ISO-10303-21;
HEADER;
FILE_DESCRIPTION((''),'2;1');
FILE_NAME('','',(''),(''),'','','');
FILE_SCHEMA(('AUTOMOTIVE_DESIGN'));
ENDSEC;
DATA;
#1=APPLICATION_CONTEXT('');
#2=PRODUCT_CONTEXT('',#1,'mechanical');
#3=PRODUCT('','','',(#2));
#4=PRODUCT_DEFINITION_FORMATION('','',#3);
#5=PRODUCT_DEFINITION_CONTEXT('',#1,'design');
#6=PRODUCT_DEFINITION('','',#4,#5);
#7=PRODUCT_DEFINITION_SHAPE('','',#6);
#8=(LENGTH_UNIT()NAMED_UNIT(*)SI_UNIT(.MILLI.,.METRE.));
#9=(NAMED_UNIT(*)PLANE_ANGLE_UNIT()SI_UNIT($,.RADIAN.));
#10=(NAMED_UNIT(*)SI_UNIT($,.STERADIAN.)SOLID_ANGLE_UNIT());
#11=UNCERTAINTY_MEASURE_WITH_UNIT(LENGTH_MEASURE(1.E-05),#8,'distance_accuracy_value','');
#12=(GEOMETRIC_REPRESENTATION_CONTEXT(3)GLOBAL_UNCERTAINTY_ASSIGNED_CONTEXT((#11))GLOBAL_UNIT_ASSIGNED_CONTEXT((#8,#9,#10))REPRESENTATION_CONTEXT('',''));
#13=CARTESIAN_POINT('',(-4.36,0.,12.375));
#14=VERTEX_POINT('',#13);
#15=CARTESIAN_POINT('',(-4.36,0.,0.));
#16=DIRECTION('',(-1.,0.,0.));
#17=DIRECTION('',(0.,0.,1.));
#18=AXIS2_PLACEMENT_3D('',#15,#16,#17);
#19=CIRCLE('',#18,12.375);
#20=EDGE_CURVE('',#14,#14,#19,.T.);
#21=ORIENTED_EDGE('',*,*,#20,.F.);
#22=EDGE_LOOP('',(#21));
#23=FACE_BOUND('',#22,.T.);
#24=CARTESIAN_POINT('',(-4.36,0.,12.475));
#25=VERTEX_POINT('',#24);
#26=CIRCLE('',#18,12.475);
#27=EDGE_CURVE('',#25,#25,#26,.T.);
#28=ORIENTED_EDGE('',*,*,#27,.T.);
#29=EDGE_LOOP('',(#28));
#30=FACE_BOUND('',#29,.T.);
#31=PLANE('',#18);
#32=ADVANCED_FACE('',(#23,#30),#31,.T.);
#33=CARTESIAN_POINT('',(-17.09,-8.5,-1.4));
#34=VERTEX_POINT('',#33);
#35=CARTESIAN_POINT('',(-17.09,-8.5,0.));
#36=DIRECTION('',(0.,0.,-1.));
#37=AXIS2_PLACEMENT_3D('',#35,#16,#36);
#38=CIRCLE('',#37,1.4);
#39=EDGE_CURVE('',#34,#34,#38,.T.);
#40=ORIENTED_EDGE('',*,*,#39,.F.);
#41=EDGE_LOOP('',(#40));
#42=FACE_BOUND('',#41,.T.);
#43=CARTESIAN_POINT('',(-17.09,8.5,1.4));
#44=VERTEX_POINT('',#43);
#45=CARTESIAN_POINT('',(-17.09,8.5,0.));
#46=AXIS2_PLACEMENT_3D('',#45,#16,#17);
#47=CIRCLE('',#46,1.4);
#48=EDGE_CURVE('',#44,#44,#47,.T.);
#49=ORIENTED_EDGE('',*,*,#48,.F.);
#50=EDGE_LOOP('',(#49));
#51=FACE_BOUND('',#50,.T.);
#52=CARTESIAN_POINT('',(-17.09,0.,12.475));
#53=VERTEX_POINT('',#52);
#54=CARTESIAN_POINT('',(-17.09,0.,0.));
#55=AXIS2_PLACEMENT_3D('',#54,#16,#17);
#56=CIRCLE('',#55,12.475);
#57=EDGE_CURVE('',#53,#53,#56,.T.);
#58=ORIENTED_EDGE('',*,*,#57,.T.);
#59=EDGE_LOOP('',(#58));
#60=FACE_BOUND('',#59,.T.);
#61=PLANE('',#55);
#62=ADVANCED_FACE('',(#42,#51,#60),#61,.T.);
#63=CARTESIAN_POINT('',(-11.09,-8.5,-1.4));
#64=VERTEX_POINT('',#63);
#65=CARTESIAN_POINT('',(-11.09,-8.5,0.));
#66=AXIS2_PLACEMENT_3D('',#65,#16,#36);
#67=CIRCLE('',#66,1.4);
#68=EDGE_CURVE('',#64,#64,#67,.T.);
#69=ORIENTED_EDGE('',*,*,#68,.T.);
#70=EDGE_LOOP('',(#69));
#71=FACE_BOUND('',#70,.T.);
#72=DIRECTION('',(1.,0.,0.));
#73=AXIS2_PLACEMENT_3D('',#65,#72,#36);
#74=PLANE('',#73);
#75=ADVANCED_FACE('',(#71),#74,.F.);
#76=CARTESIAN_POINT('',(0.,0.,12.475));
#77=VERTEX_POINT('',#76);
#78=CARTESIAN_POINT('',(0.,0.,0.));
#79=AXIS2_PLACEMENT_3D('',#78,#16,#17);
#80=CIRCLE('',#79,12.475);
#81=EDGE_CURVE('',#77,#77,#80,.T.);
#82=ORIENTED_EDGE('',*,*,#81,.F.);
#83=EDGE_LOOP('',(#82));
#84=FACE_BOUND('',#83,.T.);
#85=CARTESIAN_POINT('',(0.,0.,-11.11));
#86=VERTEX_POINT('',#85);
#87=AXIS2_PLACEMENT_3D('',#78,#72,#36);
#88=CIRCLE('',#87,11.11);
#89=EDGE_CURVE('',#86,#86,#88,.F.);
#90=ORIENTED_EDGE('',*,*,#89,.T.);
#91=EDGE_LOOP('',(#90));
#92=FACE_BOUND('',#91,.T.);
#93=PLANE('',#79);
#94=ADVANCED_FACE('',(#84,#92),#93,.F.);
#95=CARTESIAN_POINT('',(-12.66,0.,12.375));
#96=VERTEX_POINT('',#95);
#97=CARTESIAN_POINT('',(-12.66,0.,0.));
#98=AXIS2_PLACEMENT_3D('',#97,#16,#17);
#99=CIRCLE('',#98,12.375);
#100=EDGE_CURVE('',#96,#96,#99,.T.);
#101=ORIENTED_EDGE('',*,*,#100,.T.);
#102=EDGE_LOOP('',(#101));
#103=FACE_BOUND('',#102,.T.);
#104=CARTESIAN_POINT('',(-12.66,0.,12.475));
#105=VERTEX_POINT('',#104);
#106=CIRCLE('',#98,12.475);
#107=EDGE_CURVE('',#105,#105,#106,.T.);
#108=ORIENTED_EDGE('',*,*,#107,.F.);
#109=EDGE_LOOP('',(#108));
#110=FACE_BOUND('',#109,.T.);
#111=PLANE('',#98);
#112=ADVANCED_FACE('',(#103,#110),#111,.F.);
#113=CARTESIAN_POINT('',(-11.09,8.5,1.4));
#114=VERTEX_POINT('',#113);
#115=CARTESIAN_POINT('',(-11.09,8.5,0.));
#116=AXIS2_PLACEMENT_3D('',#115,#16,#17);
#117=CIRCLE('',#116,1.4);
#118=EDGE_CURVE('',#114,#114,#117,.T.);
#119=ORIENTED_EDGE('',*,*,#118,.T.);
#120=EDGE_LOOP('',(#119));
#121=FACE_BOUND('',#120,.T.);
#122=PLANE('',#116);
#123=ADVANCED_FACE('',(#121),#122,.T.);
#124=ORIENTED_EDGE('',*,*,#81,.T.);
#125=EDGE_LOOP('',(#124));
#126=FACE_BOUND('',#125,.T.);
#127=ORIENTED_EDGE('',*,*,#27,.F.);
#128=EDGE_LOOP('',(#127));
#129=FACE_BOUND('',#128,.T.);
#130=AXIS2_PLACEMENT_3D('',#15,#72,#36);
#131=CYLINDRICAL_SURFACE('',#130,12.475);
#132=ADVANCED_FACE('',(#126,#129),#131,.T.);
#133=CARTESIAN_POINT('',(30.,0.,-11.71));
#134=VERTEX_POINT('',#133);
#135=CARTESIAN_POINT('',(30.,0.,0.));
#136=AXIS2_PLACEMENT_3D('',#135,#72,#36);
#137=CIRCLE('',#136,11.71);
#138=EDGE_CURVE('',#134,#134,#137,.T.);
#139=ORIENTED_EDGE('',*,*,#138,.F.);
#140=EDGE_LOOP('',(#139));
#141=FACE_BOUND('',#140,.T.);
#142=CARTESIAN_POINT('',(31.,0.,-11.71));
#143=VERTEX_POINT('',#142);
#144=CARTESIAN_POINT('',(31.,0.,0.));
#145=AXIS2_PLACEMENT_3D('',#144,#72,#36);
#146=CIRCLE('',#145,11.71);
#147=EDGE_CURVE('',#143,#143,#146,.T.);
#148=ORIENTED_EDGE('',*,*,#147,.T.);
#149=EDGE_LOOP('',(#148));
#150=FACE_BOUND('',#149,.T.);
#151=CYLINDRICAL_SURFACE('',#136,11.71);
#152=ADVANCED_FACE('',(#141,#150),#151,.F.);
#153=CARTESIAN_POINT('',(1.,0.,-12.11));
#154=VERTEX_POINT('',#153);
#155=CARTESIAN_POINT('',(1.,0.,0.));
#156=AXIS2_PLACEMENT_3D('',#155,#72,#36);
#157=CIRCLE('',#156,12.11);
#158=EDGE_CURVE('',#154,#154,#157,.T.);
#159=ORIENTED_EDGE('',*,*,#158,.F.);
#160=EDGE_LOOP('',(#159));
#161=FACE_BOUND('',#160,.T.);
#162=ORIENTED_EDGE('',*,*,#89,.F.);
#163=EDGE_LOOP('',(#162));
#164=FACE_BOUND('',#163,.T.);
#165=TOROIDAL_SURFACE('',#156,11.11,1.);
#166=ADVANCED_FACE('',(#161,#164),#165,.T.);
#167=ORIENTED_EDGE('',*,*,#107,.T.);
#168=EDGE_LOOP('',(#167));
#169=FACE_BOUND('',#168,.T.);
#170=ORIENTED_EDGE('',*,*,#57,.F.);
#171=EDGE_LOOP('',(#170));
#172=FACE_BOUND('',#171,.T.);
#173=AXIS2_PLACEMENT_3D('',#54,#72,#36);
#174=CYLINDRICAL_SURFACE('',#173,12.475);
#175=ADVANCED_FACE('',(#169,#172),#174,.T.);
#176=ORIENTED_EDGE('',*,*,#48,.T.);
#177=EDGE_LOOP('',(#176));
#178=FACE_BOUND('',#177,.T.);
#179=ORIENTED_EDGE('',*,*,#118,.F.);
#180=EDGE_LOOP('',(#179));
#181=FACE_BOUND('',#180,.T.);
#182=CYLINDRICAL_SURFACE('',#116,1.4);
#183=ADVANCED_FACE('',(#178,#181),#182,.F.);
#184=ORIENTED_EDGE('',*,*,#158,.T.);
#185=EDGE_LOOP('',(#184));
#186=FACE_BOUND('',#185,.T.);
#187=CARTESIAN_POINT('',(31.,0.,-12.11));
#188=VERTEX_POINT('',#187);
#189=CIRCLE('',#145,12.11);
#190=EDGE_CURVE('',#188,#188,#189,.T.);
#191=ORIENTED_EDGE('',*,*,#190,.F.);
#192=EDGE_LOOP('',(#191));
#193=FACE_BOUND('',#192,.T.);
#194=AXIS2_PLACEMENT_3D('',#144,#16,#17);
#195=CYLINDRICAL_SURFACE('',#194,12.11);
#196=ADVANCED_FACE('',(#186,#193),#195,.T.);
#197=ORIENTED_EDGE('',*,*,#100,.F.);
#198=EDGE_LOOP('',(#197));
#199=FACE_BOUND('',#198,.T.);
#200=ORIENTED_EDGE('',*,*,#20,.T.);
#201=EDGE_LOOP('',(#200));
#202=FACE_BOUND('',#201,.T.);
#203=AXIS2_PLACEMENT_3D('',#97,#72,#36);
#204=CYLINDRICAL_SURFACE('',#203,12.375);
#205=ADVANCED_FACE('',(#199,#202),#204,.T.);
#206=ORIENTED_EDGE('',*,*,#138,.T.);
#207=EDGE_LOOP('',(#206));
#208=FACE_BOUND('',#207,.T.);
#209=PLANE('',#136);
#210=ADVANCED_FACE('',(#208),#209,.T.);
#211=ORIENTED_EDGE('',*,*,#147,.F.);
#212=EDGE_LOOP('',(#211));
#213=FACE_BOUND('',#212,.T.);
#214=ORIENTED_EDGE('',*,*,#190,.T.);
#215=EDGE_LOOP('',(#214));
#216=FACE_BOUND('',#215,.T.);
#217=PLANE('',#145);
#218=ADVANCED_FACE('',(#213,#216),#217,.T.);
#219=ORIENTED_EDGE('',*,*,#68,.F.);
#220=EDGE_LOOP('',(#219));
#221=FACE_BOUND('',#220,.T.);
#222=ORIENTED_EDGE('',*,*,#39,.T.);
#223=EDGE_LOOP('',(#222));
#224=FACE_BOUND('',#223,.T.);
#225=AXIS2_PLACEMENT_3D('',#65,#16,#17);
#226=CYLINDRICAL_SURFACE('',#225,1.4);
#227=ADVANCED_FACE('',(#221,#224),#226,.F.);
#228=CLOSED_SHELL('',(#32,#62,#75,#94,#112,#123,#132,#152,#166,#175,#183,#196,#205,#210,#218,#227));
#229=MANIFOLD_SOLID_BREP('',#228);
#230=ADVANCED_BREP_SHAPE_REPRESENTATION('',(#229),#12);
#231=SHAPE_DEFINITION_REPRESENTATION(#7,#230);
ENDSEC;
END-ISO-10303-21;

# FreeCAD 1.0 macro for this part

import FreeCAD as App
import Part
import Sketcher


def edges_at(feature, points):
    """Names of the edges that pass closest to the given points."""
    edges = feature.Shape.Edges
    near = lambda p: min(range(len(edges)), key=lambda i: edges[i].distToShape(Part.Vertex(*p))[0])
    return sorted({f"Edge{near(p) + 1}" for p in points})

doc = App.newDocument("Part")
params = doc.addObject("Spreadsheet::Sheet", "Params")
for row, (alias, value) in enumerate([
    ("sketch1_diameter", "24.22 mm"),
    ("pad1_length", "31 mm"),
    ("fillet_radius", "1 mm"),
    ("sketch2_diameter", "23.42 mm"),
    ("pocket1_length", "1 mm"),
    ("sketch3_diameter", "24.95 mm"),
    ("pad2_length", "4.36 mm"),
    ("sketch4_diameter", "24.75 mm"),
    ("pad3_length", "8.3 mm"),
    ("sketch5_diameter", "24.95 mm"),
    ("pad4_length", "4.43 mm"),
    ("sketch6_diameter", "2.8 mm"),
    ("pocket2_length", "6 mm"),
], start=1):
    params.set(f"A{row}", alias)
    params.set(f"B{row}", "=" + value)
    params.setAlias(f"B{row}", alias)

body = doc.addObject("PartDesign::Body", "Body")

# Sketch on YZ plane
sketch1 = body.newObject("Sketcher::SketchObject", "Sketch")
sketch1.AttachmentSupport = (doc.getObject("YZ_Plane"), [""])
sketch1.MapMode = "FlatFace"
sketch1.addGeometry(Part.Circle(App.Vector(0, 0, 0), App.Vector(0, 0, 1), 12.11), False)
sketch1.addConstraint(Sketcher.Constraint("Coincident", 0, 3, -1, 1))
sketch1.addConstraint(Sketcher.Constraint("Diameter", 0, 24.22))
sketch1.setExpression("Constraints[1]", "Params.sketch1_diameter")
pad1 = body.newObject("PartDesign::Pad", "Pad")
pad1.Profile = sketch1
pad1.setExpression("Length", "Params.pad1_length")
doc.recompute()

fillet = body.newObject("PartDesign::Fillet", "Fillet")
fillet.Base = (pad1, edges_at(pad1, [(0, 0, 12.11)]))
fillet.setExpression("Radius", "Params.fillet_radius")

# Sketch on YZ plane
sketch2 = body.newObject("Sketcher::SketchObject", "Sketch001")
sketch2.AttachmentSupport = (doc.getObject("YZ_Plane"), [""])
sketch2.MapMode = "FlatFace"
sketch2.AttachmentOffset = App.Placement(App.Vector(0, 0, 31), App.Rotation())
sketch2.addGeometry(Part.Circle(App.Vector(0, 0, 0), App.Vector(0, 0, 1), 11.71), False)
sketch2.addConstraint(Sketcher.Constraint("Coincident", 0, 3, -1, 1))
sketch2.addConstraint(Sketcher.Constraint("Diameter", 0, 23.42))
sketch2.setExpression("Constraints[1]", "Params.sketch2_diameter")
pocket1 = body.newObject("PartDesign::Pocket", "Pocket")
pocket1.Profile = sketch2
pocket1.setExpression("Length", "Params.pocket1_length")

# Sketch on YZ plane
sketch3 = body.newObject("Sketcher::SketchObject", "Sketch002")
sketch3.AttachmentSupport = (doc.getObject("YZ_Plane"), [""])
sketch3.MapMode = "FlatFace"
sketch3.addGeometry(Part.Circle(App.Vector(0, 0, 0), App.Vector(0, 0, 1), 12.475), False)
sketch3.addConstraint(Sketcher.Constraint("Coincident", 0, 3, -1, 1))
sketch3.addConstraint(Sketcher.Constraint("Diameter", 0, 24.95))
sketch3.setExpression("Constraints[1]", "Params.sketch3_diameter")
pad2 = body.newObject("PartDesign::Pad", "Pad001")
pad2.Profile = sketch3
pad2.setExpression("Length", "Params.pad2_length")
pad2.Reversed = True

# Sketch on YZ plane
sketch4 = body.newObject("Sketcher::SketchObject", "Sketch003")
sketch4.AttachmentSupport = (doc.getObject("YZ_Plane"), [""])
sketch4.MapMode = "FlatFace"
sketch4.AttachmentOffset = App.Placement(App.Vector(0, 0, -4.36), App.Rotation())
sketch4.addGeometry(Part.Circle(App.Vector(0, 0, 0), App.Vector(0, 0, 1), 12.375), False)
sketch4.addConstraint(Sketcher.Constraint("Coincident", 0, 3, -1, 1))
sketch4.addConstraint(Sketcher.Constraint("Diameter", 0, 24.75))
sketch4.setExpression("Constraints[1]", "Params.sketch4_diameter")
pad3 = body.newObject("PartDesign::Pad", "Pad002")
pad3.Profile = sketch4
pad3.setExpression("Length", "Params.pad3_length")
pad3.Reversed = True

# Sketch on YZ plane
sketch5 = body.newObject("Sketcher::SketchObject", "Sketch004")
sketch5.AttachmentSupport = (doc.getObject("YZ_Plane"), [""])
sketch5.MapMode = "FlatFace"
sketch5.AttachmentOffset = App.Placement(App.Vector(0, 0, -12.66), App.Rotation())
sketch5.addGeometry(Part.Circle(App.Vector(0, 0, 0), App.Vector(0, 0, 1), 12.475), False)
sketch5.addConstraint(Sketcher.Constraint("Coincident", 0, 3, -1, 1))
sketch5.addConstraint(Sketcher.Constraint("Diameter", 0, 24.95))
sketch5.setExpression("Constraints[1]", "Params.sketch5_diameter")
pad4 = body.newObject("PartDesign::Pad", "Pad003")
pad4.Profile = sketch5
pad4.setExpression("Length", "Params.pad4_length")
pad4.Reversed = True

# Sketch on YZ plane
sketch6 = body.newObject("Sketcher::SketchObject", "Sketch005")
sketch6.AttachmentSupport = (doc.getObject("YZ_Plane"), [""])
sketch6.MapMode = "FlatFace"
sketch6.AttachmentOffset = App.Placement(App.Vector(0, 0, -17.09), App.Rotation())
sketch6.addGeometry(Part.Circle(App.Vector(8.5, 0, 0), App.Vector(0, 0, 1), 1.4), False)
sketch6.addGeometry(Part.Circle(App.Vector(-8.5, 0, 0), App.Vector(0, 0, 1), 1.4), False)
sketch6.addConstraint(Sketcher.Constraint("Equal", 0, 1))
sketch6.addConstraint(Sketcher.Constraint("Symmetric", 0, 3, 1, 3, -1, 1))
sketch6.addConstraint(Sketcher.Constraint("PointOnObject", 0, 3, -1))
sketch6.addConstraint(Sketcher.Constraint("Diameter", 0, 2.8))
sketch6.addConstraint(Sketcher.Constraint("DistanceX", 1, 3, 0, 3, 17.0))
sketch6.setExpression("Constraints[3]", "Params.sketch6_diameter")
pocket2 = body.newObject("PartDesign::Pocket", "Pocket001")
pocket2.Profile = sketch6
pocket2.setExpression("Length", "Params.pocket2_length")
pocket2.Reversed = True

doc.recompute()
